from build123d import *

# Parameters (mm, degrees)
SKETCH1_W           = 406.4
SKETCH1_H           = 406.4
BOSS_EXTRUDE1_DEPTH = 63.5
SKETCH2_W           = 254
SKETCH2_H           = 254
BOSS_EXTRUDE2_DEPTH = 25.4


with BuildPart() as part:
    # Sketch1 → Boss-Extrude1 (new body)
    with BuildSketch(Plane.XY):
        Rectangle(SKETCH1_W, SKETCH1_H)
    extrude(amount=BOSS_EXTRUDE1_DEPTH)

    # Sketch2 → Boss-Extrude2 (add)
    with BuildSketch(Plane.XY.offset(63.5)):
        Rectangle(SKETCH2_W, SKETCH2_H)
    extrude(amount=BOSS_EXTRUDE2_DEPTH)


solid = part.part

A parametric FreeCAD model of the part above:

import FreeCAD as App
import Part
import Sketcher

V = App.Vector
Q = App.Units.Quantity


def add_polygon(sketch, points):
    """Adds a closed chain of lines whose ends are joined by coincident constraints."""
    first, n = sketch.GeometryCount, len(points)
    for a, b in zip(points, points[1:] + points[:1]):
        sketch.addGeometry(Part.LineSegment(App.Vector(*a, 0), App.Vector(*b, 0)), False)
    for i in range(n):
        sketch.addConstraint(Sketcher.Constraint("Coincident", first + i, 2, first + (i + 1) % n, 1))

doc = App.newDocument("Part")
body = doc.addObject("PartDesign::Body", "Body")

# Sketch on XY plane
sketch1 = doc.addObject("Sketcher::SketchObject", "Sketch")
body.addObject(sketch1)
sketch1.AttachmentSupport = (doc.XY_Plane, [""])
sketch1.MapMode = "FlatFace"
add_polygon(sketch1, [(-203, 203), (-203, -203), (203, -203), (203, 203)])  # lines 0-3
sketch1.addConstraint([
    Sketcher.Constraint("Vertical", 0),
    Sketcher.Constraint("Horizontal", 1),
    Sketcher.Constraint("Vertical", 2),
    Sketcher.Constraint("Horizontal", 3),
    Sketcher.Constraint("Symmetric", 0, 2, 2, 2, -1, 1),
    Sketcher.Constraint("Equal", 3, 0),
    Sketcher.Constraint("DistanceX", 1, 1, 1, 2, Q("16 in")),
])
pad1 = doc.addObject("PartDesign::Pad", "Pad")
body.addObject(pad1)
pad1.Profile = sketch1
pad1.Length = Q("2.5 in")

# Sketch on XY plane
sketch2 = doc.addObject("Sketcher::SketchObject", "Sketch001")
body.addObject(sketch2)
sketch2.AttachmentSupport = (doc.XY_Plane, [""])
sketch2.MapMode = "FlatFace"
sketch2.AttachmentOffset = App.Placement(V(0, 0, 2.5 * 25.4), App.Rotation())
add_polygon(sketch2, [(-127, 127), (-127, -127), (127, -127), (127, 127)])  # lines 0-3
sketch2.addConstraint([
    Sketcher.Constraint("Vertical", 0),
    Sketcher.Constraint("Horizontal", 1),
    Sketcher.Constraint("Vertical", 2),
    Sketcher.Constraint("Horizontal", 3),
    Sketcher.Constraint("Symmetric", 0, 2, 2, 2, -1, 1),
    Sketcher.Constraint("Equal", 3, 0),
    Sketcher.Constraint("DistanceX", 1, 1, 1, 2, Q("10 in")),
])
pad2 = doc.addObject("PartDesign::Pad", "Pad001")
body.addObject(pad2)
pad2.Profile = sketch2
pad2.Length = Q("1 in")

doc.recompute()
